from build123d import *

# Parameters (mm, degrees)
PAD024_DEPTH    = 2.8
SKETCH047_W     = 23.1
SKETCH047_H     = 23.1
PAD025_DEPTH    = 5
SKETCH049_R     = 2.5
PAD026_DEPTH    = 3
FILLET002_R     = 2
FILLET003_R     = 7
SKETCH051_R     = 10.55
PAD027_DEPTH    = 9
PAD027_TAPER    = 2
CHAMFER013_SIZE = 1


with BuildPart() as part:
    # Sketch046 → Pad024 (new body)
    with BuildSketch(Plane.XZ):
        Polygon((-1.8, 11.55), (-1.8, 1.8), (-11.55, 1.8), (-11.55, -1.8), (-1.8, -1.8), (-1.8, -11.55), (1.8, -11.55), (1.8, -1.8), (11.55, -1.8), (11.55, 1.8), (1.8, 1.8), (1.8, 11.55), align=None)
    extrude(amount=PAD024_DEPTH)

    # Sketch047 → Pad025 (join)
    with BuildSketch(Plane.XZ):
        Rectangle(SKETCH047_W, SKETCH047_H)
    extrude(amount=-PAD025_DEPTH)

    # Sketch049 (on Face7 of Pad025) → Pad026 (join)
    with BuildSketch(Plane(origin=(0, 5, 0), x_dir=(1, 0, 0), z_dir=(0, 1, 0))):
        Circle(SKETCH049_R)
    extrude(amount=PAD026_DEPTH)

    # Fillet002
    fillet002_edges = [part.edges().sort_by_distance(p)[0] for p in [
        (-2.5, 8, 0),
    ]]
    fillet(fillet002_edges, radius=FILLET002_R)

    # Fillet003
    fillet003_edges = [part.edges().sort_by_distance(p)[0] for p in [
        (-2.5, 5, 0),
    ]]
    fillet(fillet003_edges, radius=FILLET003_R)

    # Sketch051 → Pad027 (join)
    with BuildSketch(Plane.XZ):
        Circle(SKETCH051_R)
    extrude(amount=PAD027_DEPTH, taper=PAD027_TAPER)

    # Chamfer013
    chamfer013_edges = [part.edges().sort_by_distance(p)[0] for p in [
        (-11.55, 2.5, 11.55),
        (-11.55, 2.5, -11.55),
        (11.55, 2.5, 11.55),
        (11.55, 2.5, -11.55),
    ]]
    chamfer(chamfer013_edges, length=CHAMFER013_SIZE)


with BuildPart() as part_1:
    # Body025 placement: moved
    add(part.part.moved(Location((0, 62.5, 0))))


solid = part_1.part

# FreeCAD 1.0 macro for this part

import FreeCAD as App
import Part
import Sketcher

V = App.Vector


def edges_at(feature, points):
    """Names of the edges that pass closest to the given points."""
    edges = feature.Shape.Edges
    near = lambda p: min(range(len(edges)), key=lambda i: edges[i].distToShape(Part.Vertex(*p))[0])
    return sorted({f"Edge{near(p) + 1}" for p in points})

doc = App.newDocument("Part")
body = doc.addObject("PartDesign::Body", "Body")

sketch1 = body.newObject("Sketcher::SketchObject", "Sketch")
sketch1.AttachmentSupport = (doc.getObject("XZ_Plane"), [""])
sketch1.MapMode = "FlatFace"
sketch1.addGeometry([
    Part.LineSegment(V(-1.8, 11.6, 0), V(-1.8, 1.8, 0)),
    Part.LineSegment(V(-1.8, 1.8, 0), V(-11.6, 1.8, 0)),
    Part.LineSegment(V(-11.6, 1.8, 0), V(-11.6, -1.8, 0)),
    Part.LineSegment(V(-11.6, -1.8, 0), V(-1.8, -1.8, 0)),
    Part.LineSegment(V(-1.8, -1.8, 0), V(-1.8, -11.6, 0)),
    Part.LineSegment(V(-1.8, -11.6, 0), V(1.8, -11.6, 0)),
    Part.LineSegment(V(1.8, -11.6, 0), V(1.8, -1.8, 0)),
    Part.LineSegment(V(1.8, -1.8, 0), V(11.6, -1.8, 0)),
    Part.LineSegment(V(11.6, -1.8, 0), V(11.6, 1.8, 0)),
    Part.LineSegment(V(11.6, 1.8, 0), V(1.8, 1.8, 0)),
    Part.LineSegment(V(1.8, 1.8, 0), V(1.8, 11.6, 0)),
    Part.LineSegment(V(1.8, 11.6, 0), V(-1.8, 11.6, 0)),
], False)
sketch1.addConstraint([
    Sketcher.Constraint("Coincident", 0, 2, 1, 1),
    Sketcher.Constraint("Coincident", 1, 2, 2, 1),
    Sketcher.Constraint("Coincident", 2, 2, 3, 1),
    Sketcher.Constraint("Coincident", 3, 2, 4, 1),
    Sketcher.Constraint("Coincident", 4, 2, 5, 1),
    Sketcher.Constraint("Coincident", 5, 2, 6, 1),
    Sketcher.Constraint("Coincident", 6, 2, 7, 1),
    Sketcher.Constraint("Coincident", 7, 2, 8, 1),
    Sketcher.Constraint("Coincident", 8, 2, 9, 1),
    Sketcher.Constraint("Coincident", 9, 2, 10, 1),
    Sketcher.Constraint("Coincident", 10, 2, 11, 1),
    Sketcher.Constraint("Coincident", 11, 2, 0, 1),
    Sketcher.Constraint("Vertical", 0),
    Sketcher.Constraint("Horizontal", 1),
    Sketcher.Constraint("Vertical", 2),
    Sketcher.Constraint("Horizontal", 3),
    Sketcher.Constraint("Vertical", 4),
    Sketcher.Constraint("Horizontal", 5),
    Sketcher.Constraint("Vertical", 6),
    Sketcher.Constraint("Horizontal", 7),
    Sketcher.Constraint("Vertical", 8),
    Sketcher.Constraint("Horizontal", 9),
    Sketcher.Constraint("Vertical", 10),
    Sketcher.Constraint("Horizontal", 11),
    Sketcher.Constraint("Symmetric", 0, 2, 6, 2, -1, 1),
    Sketcher.Constraint("Symmetric", 2, 2, 8, 2, -1, 1),
    Sketcher.Constraint("Symmetric", 4, 2, 10, 2, -1, 1),
    Sketcher.Constraint("Symmetric", 3, 2, 6, 2, -2),
    Sketcher.Constraint("Equal", 9, 0),
    Sketcher.Constraint("Equal", 11, 2),
    Sketcher.Constraint("DistanceX", 5, 1, 5, 2, 3.6),
    Sketcher.Constraint("DistanceX", 1, 2, 1, 1, 9.75),
])
pad1 = body.newObject("PartDesign::Pad", "Pad")
pad1.Profile = sketch1
pad1.Length = 2.8

sketch2 = body.newObject("Sketcher::SketchObject", "Sketch001")
sketch2.AttachmentSupport = (doc.getObject("XZ_Plane"), [""])
sketch2.MapMode = "FlatFace"
sketch2.addGeometry([
    Part.LineSegment(V(-12, 12, 0), V(-12, -12, 0)),
    Part.LineSegment(V(-12, -12, 0), V(12, -12, 0)),
    Part.LineSegment(V(12, -12, 0), V(12, 12, 0)),
    Part.LineSegment(V(12, 12, 0), V(-12, 12, 0)),
], False)
sketch2.addConstraint([
    Sketcher.Constraint("Coincident", 0, 2, 1, 1),
    Sketcher.Constraint("Coincident", 1, 2, 2, 1),
    Sketcher.Constraint("Coincident", 2, 2, 3, 1),
    Sketcher.Constraint("Coincident", 3, 2, 0, 1),
    Sketcher.Constraint("Vertical", 0),
    Sketcher.Constraint("Horizontal", 1),
    Sketcher.Constraint("Vertical", 2),
    Sketcher.Constraint("Horizontal", 3),
    Sketcher.Constraint("Symmetric", 0, 2, 2, 2, -1, 1),
    Sketcher.Constraint("Equal", 3, 0),
    Sketcher.Constraint("DistanceX", 1, 1, 1, 2, 23.1),
])
pad2 = body.newObject("PartDesign::Pad", "Pad001")
pad2.Profile = sketch2
pad2.Length = 5
pad2.Reversed = True

sketch3 = body.newObject("Sketcher::SketchObject", "Sketch002")
sketch3.AttachmentSupport = (doc.getObject("XZ_Plane"), [""])
sketch3.MapMode = "FlatFace"
sketch3.AttachmentOffset = App.Placement(V(0, 0, -5), App.Rotation())
sketch3.addGeometry(Part.Circle(V(0, 0, 0), V(0, 0, 1), 2.5), False)
sketch3.addConstraint([
    Sketcher.Constraint("Coincident", 0, 3, -1, 1),
    Sketcher.Constraint("Diameter", 0, 5.0),
])
pad3 = body.newObject("PartDesign::Pad", "Pad002")
pad3.Profile = sketch3
pad3.Length = 3
pad3.Reversed = True
doc.recompute()

fillet = body.newObject("PartDesign::Fillet", "Fillet")
fillet.Base = (pad3, edges_at(pad3, [(-2.5, 8, 0)]))
fillet.Radius = 2
doc.recompute()

fillet2 = body.newObject("PartDesign::Fillet", "Fillet001")
fillet2.Base = (fillet, edges_at(fillet, [(-2.5, 5, 0)]))
fillet2.Radius = 7

sketch4 = body.newObject("Sketcher::SketchObject", "Sketch003")
sketch4.AttachmentSupport = (doc.getObject("XZ_Plane"), [""])
sketch4.MapMode = "FlatFace"
sketch4.addGeometry(Part.Circle(V(0, 0, 0), V(0, 0, 1), 11), False)
sketch4.addConstraint([
    Sketcher.Constraint("Coincident", 0, 3, -1, 1),
    Sketcher.Constraint("Diameter", 0, 21.1),
])
pad4 = body.newObject("PartDesign::Pad", "Pad003")
pad4.Profile = sketch4
pad4.Length = 9
pad4.TaperAngle = -2
doc.recompute()

chamfer = body.newObject("PartDesign::Chamfer", "Chamfer")
chamfer.Base = (pad4, edges_at(pad4, [
    (-11.55, 2.5, 11.55),
    (-11.55, 2.5, -11.55),
    (11.55, 2.5, 11.55),
    (11.55, 2.5, -11.55),
]))
chamfer.Size = 1
body2 = doc.addObject("PartDesign::Body", "Body001")
doc.recompute()

body.Placement = App.Placement(V(0, 62.5, 0), App.Rotation(V(0, 0, 1), 0))
boolean = body2.newObject("PartDesign::Boolean", "Boolean")
boolean.Type = "Fuse"
boolean.addObjects([body])

doc.recompute()
